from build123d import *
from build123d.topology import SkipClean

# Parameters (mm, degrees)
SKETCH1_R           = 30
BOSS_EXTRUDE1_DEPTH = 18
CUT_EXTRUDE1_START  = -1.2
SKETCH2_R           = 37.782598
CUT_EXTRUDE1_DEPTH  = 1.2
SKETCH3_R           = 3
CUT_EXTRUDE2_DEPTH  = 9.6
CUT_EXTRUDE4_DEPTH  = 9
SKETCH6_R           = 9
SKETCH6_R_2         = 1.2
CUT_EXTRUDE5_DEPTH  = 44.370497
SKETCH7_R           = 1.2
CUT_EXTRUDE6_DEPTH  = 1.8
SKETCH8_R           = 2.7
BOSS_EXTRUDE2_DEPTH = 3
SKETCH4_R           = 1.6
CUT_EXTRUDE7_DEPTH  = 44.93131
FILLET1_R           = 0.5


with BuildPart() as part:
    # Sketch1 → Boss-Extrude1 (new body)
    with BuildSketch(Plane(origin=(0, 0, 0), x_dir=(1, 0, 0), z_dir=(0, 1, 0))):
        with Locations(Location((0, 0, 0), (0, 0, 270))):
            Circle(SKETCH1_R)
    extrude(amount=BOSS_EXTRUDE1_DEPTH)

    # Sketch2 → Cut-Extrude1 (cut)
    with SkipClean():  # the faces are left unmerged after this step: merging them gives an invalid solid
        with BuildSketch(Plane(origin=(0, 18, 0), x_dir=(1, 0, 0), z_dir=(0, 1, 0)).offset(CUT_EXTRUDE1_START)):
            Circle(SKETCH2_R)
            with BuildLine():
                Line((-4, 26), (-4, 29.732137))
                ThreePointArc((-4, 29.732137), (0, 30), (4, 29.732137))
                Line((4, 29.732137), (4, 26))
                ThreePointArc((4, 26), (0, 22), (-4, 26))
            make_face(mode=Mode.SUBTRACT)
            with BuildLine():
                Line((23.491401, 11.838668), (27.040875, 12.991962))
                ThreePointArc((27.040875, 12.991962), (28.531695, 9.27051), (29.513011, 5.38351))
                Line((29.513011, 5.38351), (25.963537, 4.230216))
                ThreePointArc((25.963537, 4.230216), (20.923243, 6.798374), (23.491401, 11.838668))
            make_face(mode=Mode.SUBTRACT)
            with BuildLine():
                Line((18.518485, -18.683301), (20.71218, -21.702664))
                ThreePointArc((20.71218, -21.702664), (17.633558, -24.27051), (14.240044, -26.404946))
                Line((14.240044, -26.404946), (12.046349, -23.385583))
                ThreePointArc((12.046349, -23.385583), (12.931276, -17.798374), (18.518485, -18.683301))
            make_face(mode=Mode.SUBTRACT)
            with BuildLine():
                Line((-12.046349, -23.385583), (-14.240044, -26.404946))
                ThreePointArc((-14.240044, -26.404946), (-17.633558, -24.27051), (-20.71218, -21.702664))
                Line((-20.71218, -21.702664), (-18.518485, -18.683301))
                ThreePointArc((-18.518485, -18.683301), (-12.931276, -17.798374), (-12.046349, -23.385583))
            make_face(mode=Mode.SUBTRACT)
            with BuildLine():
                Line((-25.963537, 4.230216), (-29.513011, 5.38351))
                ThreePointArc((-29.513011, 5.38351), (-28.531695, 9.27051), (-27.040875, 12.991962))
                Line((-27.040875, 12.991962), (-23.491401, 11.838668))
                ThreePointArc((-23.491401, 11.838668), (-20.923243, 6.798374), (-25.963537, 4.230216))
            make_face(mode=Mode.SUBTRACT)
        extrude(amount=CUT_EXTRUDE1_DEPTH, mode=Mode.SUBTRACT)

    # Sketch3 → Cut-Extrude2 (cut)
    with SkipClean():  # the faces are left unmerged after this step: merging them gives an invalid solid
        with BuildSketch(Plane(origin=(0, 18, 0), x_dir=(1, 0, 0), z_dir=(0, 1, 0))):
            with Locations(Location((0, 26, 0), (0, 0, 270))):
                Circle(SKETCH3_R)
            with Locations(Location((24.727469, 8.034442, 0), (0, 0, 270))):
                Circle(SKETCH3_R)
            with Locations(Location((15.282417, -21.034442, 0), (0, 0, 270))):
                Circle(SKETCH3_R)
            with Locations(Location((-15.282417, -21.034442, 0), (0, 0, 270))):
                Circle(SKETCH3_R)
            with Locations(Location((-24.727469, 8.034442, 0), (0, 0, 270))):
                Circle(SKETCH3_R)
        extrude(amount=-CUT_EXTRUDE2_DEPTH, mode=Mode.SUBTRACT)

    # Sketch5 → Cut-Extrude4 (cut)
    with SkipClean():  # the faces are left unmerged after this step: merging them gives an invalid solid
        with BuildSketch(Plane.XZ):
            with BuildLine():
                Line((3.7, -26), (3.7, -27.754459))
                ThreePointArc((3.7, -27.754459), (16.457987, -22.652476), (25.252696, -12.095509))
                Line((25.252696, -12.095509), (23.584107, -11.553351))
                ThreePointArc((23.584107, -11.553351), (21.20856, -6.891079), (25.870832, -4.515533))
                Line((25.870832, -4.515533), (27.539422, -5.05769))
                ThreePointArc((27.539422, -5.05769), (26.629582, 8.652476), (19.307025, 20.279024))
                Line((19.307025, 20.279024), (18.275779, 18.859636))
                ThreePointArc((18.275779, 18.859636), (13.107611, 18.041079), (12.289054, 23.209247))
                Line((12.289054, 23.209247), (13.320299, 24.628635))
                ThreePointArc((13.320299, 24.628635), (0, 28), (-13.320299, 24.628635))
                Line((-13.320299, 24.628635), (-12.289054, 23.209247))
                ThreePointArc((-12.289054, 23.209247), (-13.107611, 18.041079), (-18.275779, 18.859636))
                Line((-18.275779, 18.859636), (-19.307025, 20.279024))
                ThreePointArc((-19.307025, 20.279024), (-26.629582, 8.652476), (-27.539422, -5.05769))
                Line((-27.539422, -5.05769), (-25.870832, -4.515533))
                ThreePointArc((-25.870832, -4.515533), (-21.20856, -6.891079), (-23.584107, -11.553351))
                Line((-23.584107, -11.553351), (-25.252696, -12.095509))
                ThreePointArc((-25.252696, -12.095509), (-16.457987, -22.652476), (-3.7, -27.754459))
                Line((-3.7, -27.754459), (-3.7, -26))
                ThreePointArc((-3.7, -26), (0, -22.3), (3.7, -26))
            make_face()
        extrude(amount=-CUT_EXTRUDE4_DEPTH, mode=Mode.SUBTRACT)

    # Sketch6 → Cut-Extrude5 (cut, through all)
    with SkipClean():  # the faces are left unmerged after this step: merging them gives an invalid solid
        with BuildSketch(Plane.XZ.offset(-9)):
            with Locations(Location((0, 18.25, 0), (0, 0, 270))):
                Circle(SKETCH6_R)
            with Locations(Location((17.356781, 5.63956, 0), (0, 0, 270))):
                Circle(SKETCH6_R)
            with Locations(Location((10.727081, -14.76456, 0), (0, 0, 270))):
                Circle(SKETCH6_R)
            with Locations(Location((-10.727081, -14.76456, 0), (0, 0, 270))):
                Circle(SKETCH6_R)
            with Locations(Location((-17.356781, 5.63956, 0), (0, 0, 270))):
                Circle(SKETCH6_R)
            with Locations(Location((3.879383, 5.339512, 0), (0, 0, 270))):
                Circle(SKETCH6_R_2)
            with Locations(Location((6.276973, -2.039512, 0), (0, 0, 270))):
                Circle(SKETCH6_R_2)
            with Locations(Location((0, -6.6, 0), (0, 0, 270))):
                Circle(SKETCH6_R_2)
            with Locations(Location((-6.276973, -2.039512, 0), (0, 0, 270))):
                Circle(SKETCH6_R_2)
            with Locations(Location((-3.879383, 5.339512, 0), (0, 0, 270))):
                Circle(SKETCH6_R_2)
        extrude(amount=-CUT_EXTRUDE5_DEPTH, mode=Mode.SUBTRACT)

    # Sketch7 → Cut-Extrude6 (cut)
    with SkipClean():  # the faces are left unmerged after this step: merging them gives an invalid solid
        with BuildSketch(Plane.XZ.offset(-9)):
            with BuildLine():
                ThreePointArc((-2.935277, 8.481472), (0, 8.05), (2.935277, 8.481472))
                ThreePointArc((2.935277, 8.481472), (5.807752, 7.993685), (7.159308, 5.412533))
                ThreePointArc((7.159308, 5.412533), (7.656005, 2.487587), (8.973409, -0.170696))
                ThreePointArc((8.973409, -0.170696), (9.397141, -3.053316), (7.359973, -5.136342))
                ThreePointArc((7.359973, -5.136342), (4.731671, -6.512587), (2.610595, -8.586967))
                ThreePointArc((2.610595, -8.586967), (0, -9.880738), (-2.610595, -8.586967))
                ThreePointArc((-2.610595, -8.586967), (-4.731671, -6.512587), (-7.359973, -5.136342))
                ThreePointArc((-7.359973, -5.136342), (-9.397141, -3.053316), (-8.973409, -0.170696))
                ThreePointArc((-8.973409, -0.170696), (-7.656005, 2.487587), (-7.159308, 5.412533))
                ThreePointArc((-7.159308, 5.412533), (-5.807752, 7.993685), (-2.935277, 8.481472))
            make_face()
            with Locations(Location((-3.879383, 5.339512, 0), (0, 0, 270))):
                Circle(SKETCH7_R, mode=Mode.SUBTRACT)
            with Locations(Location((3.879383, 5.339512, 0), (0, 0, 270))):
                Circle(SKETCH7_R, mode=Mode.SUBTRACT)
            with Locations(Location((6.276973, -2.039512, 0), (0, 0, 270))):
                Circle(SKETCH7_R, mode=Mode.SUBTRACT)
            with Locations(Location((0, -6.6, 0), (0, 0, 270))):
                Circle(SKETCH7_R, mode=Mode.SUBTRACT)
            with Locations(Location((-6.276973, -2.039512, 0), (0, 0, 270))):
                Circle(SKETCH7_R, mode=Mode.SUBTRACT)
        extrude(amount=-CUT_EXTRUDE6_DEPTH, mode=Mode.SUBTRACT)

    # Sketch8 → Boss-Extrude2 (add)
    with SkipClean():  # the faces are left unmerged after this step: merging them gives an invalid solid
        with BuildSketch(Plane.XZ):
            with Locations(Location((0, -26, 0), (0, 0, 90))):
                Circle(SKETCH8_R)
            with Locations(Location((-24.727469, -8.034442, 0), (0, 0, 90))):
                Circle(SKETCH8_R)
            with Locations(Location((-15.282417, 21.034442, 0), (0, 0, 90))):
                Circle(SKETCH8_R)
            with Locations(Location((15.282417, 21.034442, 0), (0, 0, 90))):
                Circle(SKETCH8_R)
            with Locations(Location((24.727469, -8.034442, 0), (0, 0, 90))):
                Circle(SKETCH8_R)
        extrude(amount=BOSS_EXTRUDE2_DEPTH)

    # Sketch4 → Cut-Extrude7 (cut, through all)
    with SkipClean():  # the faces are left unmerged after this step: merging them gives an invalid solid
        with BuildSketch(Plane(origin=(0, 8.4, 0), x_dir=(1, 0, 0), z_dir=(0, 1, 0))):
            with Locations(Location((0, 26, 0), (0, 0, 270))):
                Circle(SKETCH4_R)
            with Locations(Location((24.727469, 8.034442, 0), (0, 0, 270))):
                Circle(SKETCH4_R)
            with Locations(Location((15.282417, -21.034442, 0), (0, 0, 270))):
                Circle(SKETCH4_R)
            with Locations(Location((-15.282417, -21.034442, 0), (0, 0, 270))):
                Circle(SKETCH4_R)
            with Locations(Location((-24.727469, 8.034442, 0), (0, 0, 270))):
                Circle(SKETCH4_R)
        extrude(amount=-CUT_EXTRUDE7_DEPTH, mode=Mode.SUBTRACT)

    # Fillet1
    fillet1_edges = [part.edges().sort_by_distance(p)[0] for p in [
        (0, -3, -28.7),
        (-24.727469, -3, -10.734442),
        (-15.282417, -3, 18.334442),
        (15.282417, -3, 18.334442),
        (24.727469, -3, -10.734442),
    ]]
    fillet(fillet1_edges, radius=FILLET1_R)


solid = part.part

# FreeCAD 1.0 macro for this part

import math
import FreeCAD as App
import Part
import Sketcher
Q = App.Units.Quantity


def edges_at(feature, points):
    """Names of the edges that pass closest to the given points."""
    edges = feature.Shape.Edges
    near = lambda p: min(range(len(edges)), key=lambda i: edges[i].distToShape(Part.Vertex(*p))[0])
    return sorted({f"Edge{near(p) + 1}" for p in points})

doc = App.newDocument("Part")
body = doc.addObject("PartDesign::Body", "Body")

# Sketch on XZ plane
sketch1 = body.newObject("Sketcher::SketchObject", "Sketch")
sketch1.AttachmentSupport = (doc.getObject("XZ_Plane"), [""])
sketch1.MapMode = "FlatFace"
sketch1.addGeometry(Part.Circle(App.Vector(0, 0, 0), App.Vector(0, 0, 1), 30), False)
sketch1.addConstraint([
    Sketcher.Constraint("Coincident", 0, 3, -1, 1),
    Sketcher.Constraint("Diameter", 0, Q("60 mm")),
])
pad1 = body.newObject("PartDesign::Pad", "Pad")
pad1.Profile = sketch1
pad1.Length = 18
pad1.Reversed = True

# Sketch on XZ plane
sketch2 = body.newObject("Sketcher::SketchObject", "Sketch001")
sketch2.AttachmentSupport = (doc.getObject("XZ_Plane"), [""])
sketch2.MapMode = "FlatFace"
sketch2.AttachmentOffset = App.Placement(App.Vector(0, 0, -16.8), App.Rotation())
sketch2.addGeometry([
    Part.Circle(App.Vector(0, 0, 0), App.Vector(0, 0, 1), 37.782598),  # 0
    Part.ArcOfCircle(Part.Circle(App.Vector(-15.282417, 21.034442, 0), App.Vector(0, 0, 1), 4), math.radians(-144), math.radians(36)),  # 1
    Part.LineSegment(App.Vector(-12.046349, 23.385583, 0), App.Vector(-14.240044, 26.404946, 0)),  # 2
    Part.ArcOfCircle(Part.Circle(App.Vector(0.000003, -0.000003, 0), App.Vector(0, 0, 1), 30.000005), math.radians(118.337745), math.radians(133.662254)),  # 3
    Part.LineSegment(App.Vector(-20.71218, 21.702664, 0), App.Vector(-18.518485, 18.683301, 0)),  # 4
    Part.ArcOfCircle(Part.Circle(App.Vector(15.282417, 21.034442, 0), App.Vector(0, 0, 1), 4), math.radians(144), math.radians(324)),  # 5
    Part.LineSegment(App.Vector(18.518485, 18.683301, 0), App.Vector(20.71218, 21.702664, 0)),  # 6
    Part.ArcOfCircle(Part.Circle(App.Vector(-0.000003, -0.000003, 0), App.Vector(0, 0, 1), 30.000005), math.radians(46.337746), math.radians(61.662255)),  # 7
    Part.LineSegment(App.Vector(14.240044, 26.404946, 0), App.Vector(12.046349, 23.385583, 0)),  # 8
    Part.ArcOfCircle(Part.Circle(App.Vector(-24.727469, -8.034442, 0), App.Vector(0, 0, 1), 4), math.radians(-71.999999), math.radians(108.000001)),  # 9
    Part.LineSegment(App.Vector(-25.963537, -4.230216, 0), App.Vector(-29.513011, -5.38351, 0)),  # 10
    Part.ArcOfCircle(Part.Circle(App.Vector(0.00004, 0.000013, 0), App.Vector(0, 0, 1), 30.000042), math.radians(-169.662244), math.radians(-154.337755)),  # 11
    Part.LineSegment(App.Vector(-27.040875, -12.991962, 0), App.Vector(-23.491401, -11.838668, 0)),  # 12
    Part.ArcOfCircle(Part.Circle(App.Vector(24.727469, -8.034442, 0), App.Vector(0, 0, 1), 4), math.radians(71.999999), math.radians(251.999999)),  # 13
    Part.LineSegment(App.Vector(23.491401, -11.838668, 0), App.Vector(27.040875, -12.991962, 0)),  # 14
    Part.ArcOfCircle(Part.Circle(App.Vector(-0.00004, 0.000013, 0), App.Vector(0, 0, 1), 30.000042), math.radians(-25.662245), math.radians(-10.337756)),  # 15
    Part.LineSegment(App.Vector(29.513011, -5.38351, 0), App.Vector(25.963537, -4.230216, 0)),  # 16
    Part.ArcOfCircle(Part.Circle(App.Vector(0, -26, 0), App.Vector(0, 0, 1), 4), math.radians(0), math.radians(180)),  # 17
    Part.LineSegment(App.Vector(-4, -26, 0), App.Vector(-4, -29.732137, 0)),  # 18
    Part.ArcOfCircle(Part.Circle(App.Vector(0, -0.000055, 0), App.Vector(0, 0, 1), 29.999945), math.radians(-97.66227), math.radians(-82.33773)),  # 19
    Part.LineSegment(App.Vector(4, -29.732137, 0), App.Vector(4, -26, 0)),  # 20
], False)
sketch2.addConstraint([
    Sketcher.Constraint("Tangent", 1, 2, 2, 1),
    Sketcher.Constraint("Coincident", 2, 2, 3, 1),
    Sketcher.Constraint("Coincident", 3, 2, 4, 1),
    Sketcher.Constraint("Tangent", 4, 2, 1, 1),
    Sketcher.Constraint("Tangent", 5, 2, 6, 1),
    Sketcher.Constraint("Coincident", 6, 2, 7, 1),
    Sketcher.Constraint("Coincident", 7, 2, 8, 1),
    Sketcher.Constraint("Tangent", 8, 2, 5, 1),
    Sketcher.Constraint("Tangent", 9, 2, 10, 1),
    Sketcher.Constraint("Coincident", 10, 2, 11, 1),
    Sketcher.Constraint("Coincident", 11, 2, 12, 1),
    Sketcher.Constraint("Tangent", 12, 2, 9, 1),
    Sketcher.Constraint("Tangent", 13, 2, 14, 1),
    Sketcher.Constraint("Coincident", 14, 2, 15, 1),
    Sketcher.Constraint("Coincident", 15, 2, 16, 1),
    Sketcher.Constraint("Tangent", 16, 2, 13, 1),
    Sketcher.Constraint("Tangent", 17, 2, 18, 1),
    Sketcher.Constraint("Coincident", 18, 2, 19, 1),
    Sketcher.Constraint("Coincident", 19, 2, 20, 1),
    Sketcher.Constraint("Tangent", 20, 2, 17, 1),
    Sketcher.Constraint("Vertical", 18),
    Sketcher.Constraint("Vertical", 20),
    Sketcher.Constraint("Coincident", 0, 3, -1, 1),
    Sketcher.Constraint("Coincident", 3, 3, -1, 1),
    Sketcher.Constraint("Coincident", 7, 3, -1, 1),
    Sketcher.Constraint("Equal", 1, 5),
    Sketcher.Constraint("Equal", 3, 7),
    Sketcher.Constraint("Equal", 5, 9),
    Sketcher.Constraint("Equal", 9, 13),
    Sketcher.Constraint("Equal", 11, 15),
    Sketcher.Constraint("Equal", 13, 17),
    Sketcher.Constraint("Symmetric", 1, 3, 5, 3, -2),
    Sketcher.Constraint("Symmetric", 9, 3, 13, 3, -2),
    Sketcher.Constraint("Symmetric", 11, 3, 15, 3, -2),
    Sketcher.Constraint("Symmetric", 18, 2, 19, 2, -2),
    Sketcher.Constraint("Parallel", 2, 4),
    Sketcher.Constraint("Parallel", 6, 8),
    Sketcher.Constraint("Parallel", 10, 12),
    Sketcher.Constraint("Parallel", 14, 16),
    Sketcher.Constraint("Horizontal", 4, 2, 5, 2),
    Sketcher.Constraint("Horizontal", 12, 2, 13, 2),
    Sketcher.Constraint("Equal", 2, 4),
    Sketcher.Constraint("Equal", 8, 10),
    Sketcher.Constraint("Equal", 10, 12),
    Sketcher.Constraint("Radius", 1, Q("4 mm")),
    Sketcher.Constraint("Angle", 2, Q("125.999992 deg")),
    Sketcher.Constraint("Angle", 10, Q("-162 deg")),
    Sketcher.Constraint("DistanceY", 17, 3, -1, 1, Q("26 mm")),
    Sketcher.Constraint("Radius", 11, Q("30.000042 mm")),
    Sketcher.Constraint("Diameter", 0, Q("75.565196 mm")),
    Sketcher.Constraint("Radius", 3, Q("30.000005 mm")),
    Sketcher.Constraint("Radius", 19, Q("29.999945 mm")),
    Sketcher.Constraint("DistanceY", -1, 1, 4, 2, Q("18.683301 mm")),
    Sketcher.Constraint("DistanceX", 12, 2, -1, 1, Q("23.491401 mm")),
    Sketcher.Constraint("DistanceY", 18, 2, 18, 1, Q("3.732137 mm")),
    Sketcher.Constraint("DistanceY", 10, 2, -1, 1, Q("5.38351 mm")),
])
pocket1 = body.newObject("PartDesign::Pocket", "Pocket")
pocket1.Profile = sketch2
pocket1.Length = 1.2

# Sketch on XZ plane
sketch3 = body.newObject("Sketcher::SketchObject", "Sketch002")
sketch3.AttachmentSupport = (doc.getObject("XZ_Plane"), [""])
sketch3.MapMode = "FlatFace"
sketch3.AttachmentOffset = App.Placement(App.Vector(0, 0, -18), App.Rotation())
sketch3.addGeometry([
    Part.Circle(App.Vector(0, -26, 0), App.Vector(0, 0, 1), 3),  # 0
    Part.Circle(App.Vector(24.727469, -8.034442, 0), App.Vector(0, 0, 1), 3),  # 1
    Part.Circle(App.Vector(15.282417, 21.034442, 0), App.Vector(0, 0, 1), 3),  # 2
    Part.Circle(App.Vector(-15.282417, 21.034442, 0), App.Vector(0, 0, 1), 3),  # 3
    Part.Circle(App.Vector(-24.727469, -8.034442, 0), App.Vector(0, 0, 1), 3),  # 4
], False)
sketch3.addConstraint([
    Sketcher.Constraint("Equal", 0, 1),
    Sketcher.Constraint("Equal", 1, 2),
    Sketcher.Constraint("Equal", 2, 3),
    Sketcher.Constraint("Equal", 3, 4),
    Sketcher.Constraint("Symmetric", 2, 3, 3, 3, -2),
    Sketcher.Constraint("Symmetric", 1, 3, 4, 3, -2),
    Sketcher.Constraint("PointOnObject", 0, 3, -2),
    Sketcher.Constraint("Diameter", 0, Q("6 mm")),
    Sketcher.Constraint("DistanceY", 0, 3, -1, 1, Q("26 mm")),
    Sketcher.Constraint("DistanceX", -1, 1, 1, 3, Q("24.727469 mm")),
    Sketcher.Constraint("DistanceY", -1, 1, 2, 3, Q("21.034442 mm")),
    Sketcher.Constraint("DistanceY", 0, 3, 1, 3, Q("17.965558 mm")),
    Sketcher.Constraint("DistanceX", 2, 3, 1, 3, Q("9.445052 mm")),
])
pocket2 = body.newObject("PartDesign::Pocket", "Pocket001")
pocket2.Profile = sketch3
pocket2.Length = 9.6
pocket2.Reversed = True

# Sketch on XZ plane
sketch4 = body.newObject("Sketcher::SketchObject", "Sketch003")
sketch4.AttachmentSupport = (doc.getObject("XZ_Plane"), [""])
sketch4.MapMode = "FlatFace"
sketch4.addGeometry([
    Part.LineSegment(App.Vector(3.7, -26, 0), App.Vector(3.7, -27.754459, 0)),  # 0
    Part.ArcOfCircle(Part.Circle(App.Vector(0.000001, -0.000001, 0), App.Vector(0, 0, 1), 27.999998), math.radians(-82.406564), math.radians(-25.593437)),  # 1
    Part.LineSegment(App.Vector(25.252696, -12.095509, 0), App.Vector(23.584107, -11.553351, 0)),  # 2
    Part.ArcOfCircle(Part.Circle(App.Vector(24.727469, -8.034442, 0), App.Vector(0, 0, 1), 3.7), math.radians(71.999995), math.radians(252.000015)),  # 3
    Part.LineSegment(App.Vector(25.870832, -4.515533, 0), App.Vector(27.539422, -5.05769, 0)),  # 4
    Part.ArcOfCircle(Part.Circle(App.Vector(-0.000005, -0.000001, 0), App.Vector(0, 0, 1), 28.000004), math.radians(-10.406558), math.radians(46.406557)),  # 5
    Part.LineSegment(App.Vector(19.307025, 20.279024, 0), App.Vector(18.275779, 18.859636, 0)),  # 6
    Part.ArcOfCircle(Part.Circle(App.Vector(15.282417, 21.034441, 0), App.Vector(0, 0, 1), 3.7), math.radians(143.999996), math.radians(323.999996)),  # 7
    Part.LineSegment(App.Vector(12.289054, 23.209247, 0), App.Vector(13.320299, 24.628635, 0)),  # 8
    Part.ArcOfCircle(Part.Circle(App.Vector(0, -0.000004, 0), App.Vector(0, 0, 1), 28.000004), math.radians(61.593442), math.radians(118.406558)),  # 9
    Part.LineSegment(App.Vector(-13.320299, 24.628635, 0), App.Vector(-12.289054, 23.209247, 0)),  # 10
    Part.ArcOfCircle(Part.Circle(App.Vector(-15.282417, 21.034441, 0), App.Vector(0, 0, 1), 3.7), math.radians(-143.999996), math.radians(36.000004)),  # 11
    Part.LineSegment(App.Vector(-18.275779, 18.859636, 0), App.Vector(-19.307025, 20.279024, 0)),  # 12
    Part.ArcOfCircle(Part.Circle(App.Vector(0.000005, -0.000001, 0), App.Vector(0, 0, 1), 28.000004), math.radians(133.593443), math.radians(190.406558)),  # 13
    Part.LineSegment(App.Vector(-27.539422, -5.05769, 0), App.Vector(-25.870832, -4.515533, 0)),  # 14
    Part.ArcOfCircle(Part.Circle(App.Vector(-24.727469, -8.034442, 0), App.Vector(0, 0, 1), 3.7), math.radians(-72.000015), math.radians(108.000005)),  # 15
    Part.LineSegment(App.Vector(-23.584107, -11.553351, 0), App.Vector(-25.252696, -12.095509, 0)),  # 16
    Part.ArcOfCircle(Part.Circle(App.Vector(-0.000001, -0.000001, 0), App.Vector(0, 0, 1), 27.999998), math.radians(-154.406563), math.radians(-97.593436)),  # 17
    Part.LineSegment(App.Vector(-3.7, -27.754459, 0), App.Vector(-3.7, -26, 0)),  # 18
    Part.ArcOfCircle(Part.Circle(App.Vector(0, -26, 0), App.Vector(0, 0, 1), 3.7), math.radians(0), math.radians(180)),  # 19
], False)
sketch4.addConstraint([
    Sketcher.Constraint("Coincident", 0, 2, 1, 1),
    Sketcher.Constraint("Coincident", 1, 2, 2, 1),
    Sketcher.Constraint("Tangent", 2, 2, 3, 2),
    Sketcher.Constraint("Tangent", 3, 1, 4, 1),
    Sketcher.Constraint("Coincident", 4, 2, 5, 1),
    Sketcher.Constraint("Coincident", 5, 2, 6, 1),
    Sketcher.Constraint("Tangent", 6, 2, 7, 2),
    Sketcher.Constraint("Tangent", 7, 1, 8, 1),
    Sketcher.Constraint("Coincident", 8, 2, 9, 1),
    Sketcher.Constraint("Coincident", 9, 2, 10, 1),
    Sketcher.Constraint("Tangent", 10, 2, 11, 2),
    Sketcher.Constraint("Tangent", 11, 1, 12, 1),
    Sketcher.Constraint("Coincident", 12, 2, 13, 1),
    Sketcher.Constraint("Coincident", 13, 2, 14, 1),
    Sketcher.Constraint("Tangent", 14, 2, 15, 2),
    Sketcher.Constraint("Tangent", 15, 1, 16, 1),
    Sketcher.Constraint("Coincident", 16, 2, 17, 1),
    Sketcher.Constraint("Coincident", 17, 2, 18, 1),
    Sketcher.Constraint("Tangent", 18, 2, 19, 2),
    Sketcher.Constraint("Tangent", 19, 1, 0, 1),
    Sketcher.Constraint("Vertical", 0),
    Sketcher.Constraint("Vertical", 18),
    Sketcher.Constraint("Coincident", 1, 3, -1, 1),
    Sketcher.Constraint("Coincident", 5, 3, -1, 1),
    Sketcher.Constraint("Coincident", 9, 3, -1, 1),
    Sketcher.Constraint("Coincident", 13, 3, -1, 1),
    Sketcher.Constraint("Coincident", 17, 3, -1, 1),
    Sketcher.Constraint("Equal", 3, 7),
    Sketcher.Constraint("Equal", 5, 9),
    Sketcher.Constraint("Equal", 7, 11),
    Sketcher.Constraint("Equal", 9, 13),
    Sketcher.Constraint("Equal", 11, 15),
    Sketcher.Constraint("Equal", 1, 17),
    Sketcher.Constraint("Equal", 15, 19),
    Sketcher.Constraint("Symmetric", 7, 3, 11, 3, -2),
    Sketcher.Constraint("Symmetric", 3, 3, 15, 3, -2),
    Sketcher.Constraint("PointOnObject", 19, 3, -2),
    Sketcher.Constraint("Parallel", 2, 4),
    Sketcher.Constraint("Parallel", 6, 8),
    Sketcher.Constraint("Parallel", 10, 12),
    Sketcher.Constraint("Parallel", 14, 16),
    Sketcher.Constraint("Horizontal", 8, 2, 9, 2),
    Sketcher.Constraint("Horizontal", 4, 2, 13, 2),
    Sketcher.Constraint("Equal", 2, 4),
    Sketcher.Constraint("Equal", 4, 6),
    Sketcher.Constraint("Equal", 6, 8),
    Sketcher.Constraint("Radius", 1, Q("27.999998 mm")),
    Sketcher.Constraint("Radius", 3, Q("3.7 mm")),
    Sketcher.Constraint("Angle", 2, Q("161.999982 deg")),
    Sketcher.Constraint("Angle", 6, Q("-126.000007 deg")),
    Sketcher.Constraint("DistanceY", 19, 3, -1, 1, Q("26 mm")),
    Sketcher.Constraint("Radius", 5, Q("28.000004 mm")),
    Sketcher.Constraint("DistanceY", 6, 2, 8, 2, Q("5.768999 mm")),
])
pocket3 = body.newObject("PartDesign::Pocket", "Pocket002")
pocket3.Profile = sketch4
pocket3.Length = 9

# Sketch on XZ plane
sketch5 = body.newObject("Sketcher::SketchObject", "Sketch004")
sketch5.AttachmentSupport = (doc.getObject("XZ_Plane"), [""])
sketch5.MapMode = "FlatFace"
sketch5.AttachmentOffset = App.Placement(App.Vector(0, 0, -9), App.Rotation())
sketch5.addGeometry([
    Part.Circle(App.Vector(0, 18.25, 0), App.Vector(0, 0, 1), 9),  # 0
    Part.Circle(App.Vector(17.356781, 5.63956, 0), App.Vector(0, 0, 1), 9),  # 1
    Part.Circle(App.Vector(10.727081, -14.76456, 0), App.Vector(0, 0, 1), 9),  # 2
    Part.Circle(App.Vector(-10.727081, -14.76456, 0), App.Vector(0, 0, 1), 9),  # 3
    Part.Circle(App.Vector(-17.356781, 5.63956, 0), App.Vector(0, 0, 1), 9),  # 4
    Part.Circle(App.Vector(3.879383, 5.339512, 0), App.Vector(0, 0, 1), 1.2),  # 5
    Part.Circle(App.Vector(6.276973, -2.039512, 0), App.Vector(0, 0, 1), 1.2),  # 6
    Part.Circle(App.Vector(0, -6.6, 0), App.Vector(0, 0, 1), 1.2),  # 7
    Part.Circle(App.Vector(-6.276973, -2.039512, 0), App.Vector(0, 0, 1), 1.2),  # 8
    Part.Circle(App.Vector(-3.879383, 5.339512, 0), App.Vector(0, 0, 1), 1.2),  # 9
], False)
sketch5.addConstraint([
    Sketcher.Constraint("Equal", 0, 1),
    Sketcher.Constraint("Equal", 1, 2),
    Sketcher.Constraint("Equal", 2, 3),
    Sketcher.Constraint("Equal", 3, 4),
    Sketcher.Constraint("Equal", 5, 6),
    Sketcher.Constraint("Equal", 6, 7),
    Sketcher.Constraint("Equal", 7, 8),
    Sketcher.Constraint("Equal", 8, 9),
    Sketcher.Constraint("Symmetric", 2, 3, 3, 3, -2),
    Sketcher.Constraint("Symmetric", 1, 3, 4, 3, -2),
    Sketcher.Constraint("Symmetric", 6, 3, 8, 3, -2),
    Sketcher.Constraint("Symmetric", 5, 3, 9, 3, -2),
    Sketcher.Constraint("PointOnObject", 0, 3, -2),
    Sketcher.Constraint("PointOnObject", 7, 3, -2),
    Sketcher.Constraint("Diameter", 0, Q("18 mm")),
    Sketcher.Constraint("Diameter", 5, Q("2.4 mm")),
    Sketcher.Constraint("DistanceY", 7, 3, -1, 1, Q("6.6 mm")),
    Sketcher.Constraint("DistanceY", -1, 1, 0, 3, Q("18.25 mm")),
    Sketcher.Constraint("DistanceX", 2, 3, 1, 3, Q("6.6297 mm")),
    Sketcher.Constraint("DistanceX", 5, 3, 1, 3, Q("13.477398 mm")),
    Sketcher.Constraint("DistanceX", -1, 1, 1, 3, Q("17.356781 mm")),
    Sketcher.Constraint("DistanceY", -1, 1, 1, 3, Q("5.63956 mm")),
    Sketcher.Constraint("DistanceY", 2, 3, -1, 1, Q("14.76456 mm")),
    Sketcher.Constraint("DistanceY", 5, 3, 1, 3, Q("0.300048 mm")),
    Sketcher.Constraint("DistanceX", 5, 3, 6, 3, Q("2.39759 mm")),
    Sketcher.Constraint("DistanceY", 6, 3, -1, 1, Q("2.039512 mm")),
])
pocket4 = body.newObject("PartDesign::Pocket", "Pocket003")
pocket4.Profile = sketch5
pocket4.Type = "ThroughAll"

# Sketch on XZ plane
sketch6 = body.newObject("Sketcher::SketchObject", "Sketch005")
sketch6.AttachmentSupport = (doc.getObject("XZ_Plane"), [""])
sketch6.MapMode = "FlatFace"
sketch6.AttachmentOffset = App.Placement(App.Vector(0, 0, -9), App.Rotation())
sketch6.addGeometry([
    Part.ArcOfCircle(Part.Circle(App.Vector(0, 18.249989, 0), App.Vector(0, 0, 1), 10.199989), math.radians(-106.72465), math.radians(-73.27535)),  # 0
    Part.ArcOfCircle(Part.Circle(App.Vector(-3.879382, 5.339512, 0), App.Vector(0, 0, 1), 3.280739), math.radians(73.275389), math.radians(178.724626)),  # 1
    Part.ArcOfCircle(Part.Circle(App.Vector(-17.356792, 5.639563, 0), App.Vector(0, 0, 1), 10.200011), math.radians(-34.724613), math.radians(-1.275386)),  # 2
    Part.ArcOfCircle(Part.Circle(App.Vector(-6.276974, -2.039513, 0), App.Vector(0, 0, 1), 3.280737), math.radians(145.275346), math.radians(250.72465)),  # 3
    Part.ArcOfCircle(Part.Circle(App.Vector(-10.727081, -14.76456, 0), App.Vector(0, 0, 1), 10.2), math.radians(37.275369), math.radians(70.724632)),  # 4
    Part.ArcOfCircle(Part.Circle(App.Vector(0, -6.599999, 0), App.Vector(0, 0, 1), 3.280739), math.radians(-142.724625), math.radians(-37.275375)),  # 5
    Part.ArcOfCircle(Part.Circle(App.Vector(10.727081, -14.76456, 0), App.Vector(0, 0, 1), 10.2), math.radians(109.275368), math.radians(142.724631)),  # 6
    Part.ArcOfCircle(Part.Circle(App.Vector(6.276974, -2.039513, 0), App.Vector(0, 0, 1), 3.280737), math.radians(-70.72465), math.radians(34.724654)),  # 7
    Part.ArcOfCircle(Part.Circle(App.Vector(17.356792, 5.639563, 0), App.Vector(0, 0, 1), 10.200011), math.radians(-178.724614), math.radians(-145.275387)),  # 8
    Part.ArcOfCircle(Part.Circle(App.Vector(3.879382, 5.339512, 0), App.Vector(0, 0, 1), 3.280739), math.radians(1.275374), math.radians(106.724611)),  # 9
    Part.Circle(App.Vector(6.276973, -2.039512, 0), App.Vector(0, 0, 1), 1.2),  # 10
    Part.Circle(App.Vector(0, -6.6, 0), App.Vector(0, 0, 1), 1.2),  # 11
    Part.Circle(App.Vector(-6.276973, -2.039512, 0), App.Vector(0, 0, 1), 1.2),  # 12
    Part.Circle(App.Vector(3.879383, 5.339512, 0), App.Vector(0, 0, 1), 1.2),  # 13
    Part.Circle(App.Vector(-3.879383, 5.339512, 0), App.Vector(0, 0, 1), 1.2),  # 14
], False)
sketch6.addConstraint([
    Sketcher.Constraint("Tangent", 0, 1, 1, 1),
    Sketcher.Constraint("Tangent", 1, 2, 2, 2),
    Sketcher.Constraint("Tangent", 2, 1, 3, 1),
    Sketcher.Constraint("Tangent", 3, 2, 4, 2),
    Sketcher.Constraint("Tangent", 4, 1, 5, 1),
    Sketcher.Constraint("Tangent", 5, 2, 6, 2),
    Sketcher.Constraint("Tangent", 6, 1, 7, 1),
    Sketcher.Constraint("Tangent", 7, 2, 8, 2),
    Sketcher.Constraint("Tangent", 8, 1, 9, 1),
    Sketcher.Constraint("Tangent", 9, 2, 0, 2),
    Sketcher.Constraint("Coincident", 10, 3, 7, 3),
    Sketcher.Constraint("Coincident", 11, 3, 5, 3),
    Sketcher.Constraint("Coincident", 12, 3, 3, 3),
    Sketcher.Constraint("Coincident", 13, 3, 9, 3),
    Sketcher.Constraint("Coincident", 14, 3, 1, 3),
    Sketcher.Constraint("Equal", 1, 3),
    Sketcher.Constraint("Equal", 3, 5),
    Sketcher.Constraint("Equal", 4, 6),
    Sketcher.Constraint("Equal", 5, 7),
    Sketcher.Constraint("Equal", 2, 8),
    Sketcher.Constraint("Equal", 7, 9),
    Sketcher.Constraint("Equal", 10, 11),
    Sketcher.Constraint("Equal", 11, 12),
    Sketcher.Constraint("Equal", 12, 13),
    Sketcher.Constraint("Equal", 13, 14),
    Sketcher.Constraint("Symmetric", 4, 3, 6, 3, -2),
    Sketcher.Constraint("Symmetric", 2, 3, 8, 3, -2),
    Sketcher.Constraint("PointOnObject", 0, 3, -2),
    Sketcher.Constraint("Diameter", 10, Q("2.4 mm")),
    Sketcher.Constraint("Radius", 4, Q("10.2 mm")),
    Sketcher.Constraint("DistanceY", 5, 3, -1, 1, Q("6.599999 mm")),
    Sketcher.Constraint("Radius", 0, Q("10.199989 mm")),
    Sketcher.Constraint("Radius", 1, Q("3.280739 mm")),
    Sketcher.Constraint("Radius", 2, Q("10.200011 mm")),
    Sketcher.Constraint("DistanceX", 3, 2, 3, 3, Q("1.082999 mm")),
    Sketcher.Constraint("DistanceY", 3, 3, 0, 3, Q("20.289502 mm")),
    Sketcher.Constraint("DistanceX", 4, 3, 1, 3, Q("6.847699 mm")),
    Sketcher.Constraint("DistanceY", -1, 1, 0, 3, Q("18.249989 mm")),
])
pocket5 = body.newObject("PartDesign::Pocket", "Pocket004")
pocket5.Profile = sketch6
pocket5.Length = 1.8

# Sketch on XZ plane
sketch7 = body.newObject("Sketcher::SketchObject", "Sketch006")
sketch7.AttachmentSupport = (doc.getObject("XZ_Plane"), [""])
sketch7.MapMode = "FlatFace"
sketch7.addGeometry([
    Part.Circle(App.Vector(0, -26, 0), App.Vector(0, 0, 1), 2.7),  # 0
    Part.Circle(App.Vector(-24.727469, -8.034442, 0), App.Vector(0, 0, 1), 2.7),  # 1
    Part.Circle(App.Vector(-15.282417, 21.034442, 0), App.Vector(0, 0, 1), 2.7),  # 2
    Part.Circle(App.Vector(15.282417, 21.034442, 0), App.Vector(0, 0, 1), 2.7),  # 3
    Part.Circle(App.Vector(24.727469, -8.034442, 0), App.Vector(0, 0, 1), 2.7),  # 4
], False)
sketch7.addConstraint([
    Sketcher.Constraint("Equal", 0, 1),
    Sketcher.Constraint("Equal", 1, 2),
    Sketcher.Constraint("Equal", 2, 3),
    Sketcher.Constraint("Equal", 3, 4),
    Sketcher.Constraint("Symmetric", 2, 3, 3, 3, -2),
    Sketcher.Constraint("Symmetric", 1, 3, 4, 3, -2),
    Sketcher.Constraint("PointOnObject", 0, 3, -2),
    Sketcher.Constraint("Diameter", 0, Q("5.4 mm")),
    Sketcher.Constraint("DistanceY", 0, 3, -1, 1, Q("26 mm")),
    Sketcher.Constraint("DistanceX", 1, 3, -1, 1, Q("24.727469 mm")),
    Sketcher.Constraint("DistanceY", -1, 1, 2, 3, Q("21.034442 mm")),
    Sketcher.Constraint("DistanceY", 0, 3, 1, 3, Q("17.965558 mm")),
    Sketcher.Constraint("DistanceX", 1, 3, 2, 3, Q("9.445052 mm")),
])
pad2 = body.newObject("PartDesign::Pad", "Pad001")
pad2.Profile = sketch7
pad2.Length = 3

# Sketch on XZ plane
sketch8 = body.newObject("Sketcher::SketchObject", "Sketch007")
sketch8.AttachmentSupport = (doc.getObject("XZ_Plane"), [""])
sketch8.MapMode = "FlatFace"
sketch8.AttachmentOffset = App.Placement(App.Vector(0, 0, -8.4), App.Rotation())
sketch8.addGeometry([
    Part.Circle(App.Vector(0, -26, 0), App.Vector(0, 0, 1), 1.6),  # 0
    Part.Circle(App.Vector(24.727469, -8.034442, 0), App.Vector(0, 0, 1), 1.6),  # 1
    Part.Circle(App.Vector(15.282417, 21.034442, 0), App.Vector(0, 0, 1), 1.6),  # 2
    Part.Circle(App.Vector(-15.282417, 21.034442, 0), App.Vector(0, 0, 1), 1.6),  # 3
    Part.Circle(App.Vector(-24.727469, -8.034442, 0), App.Vector(0, 0, 1), 1.6),  # 4
], False)
sketch8.addConstraint([
    Sketcher.Constraint("Equal", 0, 1),
    Sketcher.Constraint("Equal", 1, 2),
    Sketcher.Constraint("Equal", 2, 3),
    Sketcher.Constraint("Equal", 3, 4),
    Sketcher.Constraint("Symmetric", 2, 3, 3, 3, -2),
    Sketcher.Constraint("Symmetric", 1, 3, 4, 3, -2),
    Sketcher.Constraint("PointOnObject", 0, 3, -2),
    Sketcher.Constraint("Diameter", 0, Q("3.2 mm")),
    Sketcher.Constraint("DistanceY", 0, 3, -1, 1, Q("26 mm")),
    Sketcher.Constraint("DistanceX", -1, 1, 1, 3, Q("24.727469 mm")),
    Sketcher.Constraint("DistanceY", -1, 1, 2, 3, Q("21.034442 mm")),
    Sketcher.Constraint("DistanceY", 0, 3, 1, 3, Q("17.965558 mm")),
    Sketcher.Constraint("DistanceX", 2, 3, 1, 3, Q("9.445052 mm")),
])
pocket6 = body.newObject("PartDesign::Pocket", "Pocket005")
pocket6.Profile = sketch8
pocket6.Type = "ThroughAll"
pocket6.Reversed = True
doc.recompute()

fillet = body.newObject("PartDesign::Fillet", "Fillet")
fillet.Base = (pocket6, edges_at(pocket6, [
    (0, -3, -28.7),
    (-24.727, -3, -10.734),
    (-15.282, -3, 18.334),
    (15.282, -3, 18.334),
    (24.727, -3, -10.734),
]))
fillet.Radius = 0.5

doc.recompute()
